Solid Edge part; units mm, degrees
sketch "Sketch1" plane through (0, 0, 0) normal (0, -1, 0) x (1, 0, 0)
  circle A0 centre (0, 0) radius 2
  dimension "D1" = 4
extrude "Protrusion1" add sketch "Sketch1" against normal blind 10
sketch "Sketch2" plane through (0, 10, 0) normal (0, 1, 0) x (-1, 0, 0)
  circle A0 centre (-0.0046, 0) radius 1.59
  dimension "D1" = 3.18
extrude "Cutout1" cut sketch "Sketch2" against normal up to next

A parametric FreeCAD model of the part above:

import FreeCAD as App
import Part
import Sketcher
from FreeCAD import Vector

doc = App.newDocument("Part")
params = doc.addObject("Spreadsheet::Sheet", "Params")
for row, (alias, value) in enumerate([
    ("sketch1_diameter", "4 mm"),
    ("pad1_length", "10 mm"),
    ("sketch2_diameter", "3.18 mm"),
], start=1):
    params.set(f"A{row}", alias)
    params.set(f"B{row}", "=" + value)
    params.setAlias(f"B{row}", alias)

body = doc.addObject("PartDesign::Body", "Body")

sketch1 = body.newObject("Sketcher::SketchObject", "Sketch")
sketch1.AttachmentSupport = (doc.getObject("XZ_Plane"), [""])
sketch1.MapMode = "FlatFace"
sketch1.addGeometry(Part.Circle(Vector(0, 0, 0), Vector(0, 0, 1), 2), False)
sketch1.addConstraint([
    Sketcher.Constraint("Coincident", 0, 3, -1, 1),
    Sketcher.Constraint("Diameter", 0, 4.0),
])
sketch1.setExpression("Constraints[1]", "Params.sketch1_diameter")
pad1 = body.newObject("PartDesign::Pad", "Pad")
pad1.Profile = sketch1
pad1.setExpression("Length", "Params.pad1_length")
pad1.Reversed = True

sketch2 = body.newObject("Sketcher::SketchObject", "Sketch001")
sketch2.AttachmentSupport = (doc.getObject("XZ_Plane"), [""])
sketch2.MapMode = "FlatFace"
sketch2.AttachmentOffset = App.Placement(Vector(0, 0, -10), App.Rotation())
sketch2.addGeometry(Part.Circle(Vector(0, 0, 0), Vector(0, 0, 1), 1.6), False)
sketch2.addConstraint([
    Sketcher.Constraint("PointOnObject", 0, 3, -1),
    Sketcher.Constraint("Diameter", 0, 3.18),
    Sketcher.Constraint("DistanceX", -1, 1, 0, 3, 0.0046),
])
sketch2.setExpression("Constraints[1]", "Params.sketch2_diameter")
pocket1 = body.newObject("PartDesign::Pocket", "Pocket")
pocket1.Profile = sketch2
pocket1.Type = "UpToFirst"
pocket1.Reversed = True

doc.recompute()
